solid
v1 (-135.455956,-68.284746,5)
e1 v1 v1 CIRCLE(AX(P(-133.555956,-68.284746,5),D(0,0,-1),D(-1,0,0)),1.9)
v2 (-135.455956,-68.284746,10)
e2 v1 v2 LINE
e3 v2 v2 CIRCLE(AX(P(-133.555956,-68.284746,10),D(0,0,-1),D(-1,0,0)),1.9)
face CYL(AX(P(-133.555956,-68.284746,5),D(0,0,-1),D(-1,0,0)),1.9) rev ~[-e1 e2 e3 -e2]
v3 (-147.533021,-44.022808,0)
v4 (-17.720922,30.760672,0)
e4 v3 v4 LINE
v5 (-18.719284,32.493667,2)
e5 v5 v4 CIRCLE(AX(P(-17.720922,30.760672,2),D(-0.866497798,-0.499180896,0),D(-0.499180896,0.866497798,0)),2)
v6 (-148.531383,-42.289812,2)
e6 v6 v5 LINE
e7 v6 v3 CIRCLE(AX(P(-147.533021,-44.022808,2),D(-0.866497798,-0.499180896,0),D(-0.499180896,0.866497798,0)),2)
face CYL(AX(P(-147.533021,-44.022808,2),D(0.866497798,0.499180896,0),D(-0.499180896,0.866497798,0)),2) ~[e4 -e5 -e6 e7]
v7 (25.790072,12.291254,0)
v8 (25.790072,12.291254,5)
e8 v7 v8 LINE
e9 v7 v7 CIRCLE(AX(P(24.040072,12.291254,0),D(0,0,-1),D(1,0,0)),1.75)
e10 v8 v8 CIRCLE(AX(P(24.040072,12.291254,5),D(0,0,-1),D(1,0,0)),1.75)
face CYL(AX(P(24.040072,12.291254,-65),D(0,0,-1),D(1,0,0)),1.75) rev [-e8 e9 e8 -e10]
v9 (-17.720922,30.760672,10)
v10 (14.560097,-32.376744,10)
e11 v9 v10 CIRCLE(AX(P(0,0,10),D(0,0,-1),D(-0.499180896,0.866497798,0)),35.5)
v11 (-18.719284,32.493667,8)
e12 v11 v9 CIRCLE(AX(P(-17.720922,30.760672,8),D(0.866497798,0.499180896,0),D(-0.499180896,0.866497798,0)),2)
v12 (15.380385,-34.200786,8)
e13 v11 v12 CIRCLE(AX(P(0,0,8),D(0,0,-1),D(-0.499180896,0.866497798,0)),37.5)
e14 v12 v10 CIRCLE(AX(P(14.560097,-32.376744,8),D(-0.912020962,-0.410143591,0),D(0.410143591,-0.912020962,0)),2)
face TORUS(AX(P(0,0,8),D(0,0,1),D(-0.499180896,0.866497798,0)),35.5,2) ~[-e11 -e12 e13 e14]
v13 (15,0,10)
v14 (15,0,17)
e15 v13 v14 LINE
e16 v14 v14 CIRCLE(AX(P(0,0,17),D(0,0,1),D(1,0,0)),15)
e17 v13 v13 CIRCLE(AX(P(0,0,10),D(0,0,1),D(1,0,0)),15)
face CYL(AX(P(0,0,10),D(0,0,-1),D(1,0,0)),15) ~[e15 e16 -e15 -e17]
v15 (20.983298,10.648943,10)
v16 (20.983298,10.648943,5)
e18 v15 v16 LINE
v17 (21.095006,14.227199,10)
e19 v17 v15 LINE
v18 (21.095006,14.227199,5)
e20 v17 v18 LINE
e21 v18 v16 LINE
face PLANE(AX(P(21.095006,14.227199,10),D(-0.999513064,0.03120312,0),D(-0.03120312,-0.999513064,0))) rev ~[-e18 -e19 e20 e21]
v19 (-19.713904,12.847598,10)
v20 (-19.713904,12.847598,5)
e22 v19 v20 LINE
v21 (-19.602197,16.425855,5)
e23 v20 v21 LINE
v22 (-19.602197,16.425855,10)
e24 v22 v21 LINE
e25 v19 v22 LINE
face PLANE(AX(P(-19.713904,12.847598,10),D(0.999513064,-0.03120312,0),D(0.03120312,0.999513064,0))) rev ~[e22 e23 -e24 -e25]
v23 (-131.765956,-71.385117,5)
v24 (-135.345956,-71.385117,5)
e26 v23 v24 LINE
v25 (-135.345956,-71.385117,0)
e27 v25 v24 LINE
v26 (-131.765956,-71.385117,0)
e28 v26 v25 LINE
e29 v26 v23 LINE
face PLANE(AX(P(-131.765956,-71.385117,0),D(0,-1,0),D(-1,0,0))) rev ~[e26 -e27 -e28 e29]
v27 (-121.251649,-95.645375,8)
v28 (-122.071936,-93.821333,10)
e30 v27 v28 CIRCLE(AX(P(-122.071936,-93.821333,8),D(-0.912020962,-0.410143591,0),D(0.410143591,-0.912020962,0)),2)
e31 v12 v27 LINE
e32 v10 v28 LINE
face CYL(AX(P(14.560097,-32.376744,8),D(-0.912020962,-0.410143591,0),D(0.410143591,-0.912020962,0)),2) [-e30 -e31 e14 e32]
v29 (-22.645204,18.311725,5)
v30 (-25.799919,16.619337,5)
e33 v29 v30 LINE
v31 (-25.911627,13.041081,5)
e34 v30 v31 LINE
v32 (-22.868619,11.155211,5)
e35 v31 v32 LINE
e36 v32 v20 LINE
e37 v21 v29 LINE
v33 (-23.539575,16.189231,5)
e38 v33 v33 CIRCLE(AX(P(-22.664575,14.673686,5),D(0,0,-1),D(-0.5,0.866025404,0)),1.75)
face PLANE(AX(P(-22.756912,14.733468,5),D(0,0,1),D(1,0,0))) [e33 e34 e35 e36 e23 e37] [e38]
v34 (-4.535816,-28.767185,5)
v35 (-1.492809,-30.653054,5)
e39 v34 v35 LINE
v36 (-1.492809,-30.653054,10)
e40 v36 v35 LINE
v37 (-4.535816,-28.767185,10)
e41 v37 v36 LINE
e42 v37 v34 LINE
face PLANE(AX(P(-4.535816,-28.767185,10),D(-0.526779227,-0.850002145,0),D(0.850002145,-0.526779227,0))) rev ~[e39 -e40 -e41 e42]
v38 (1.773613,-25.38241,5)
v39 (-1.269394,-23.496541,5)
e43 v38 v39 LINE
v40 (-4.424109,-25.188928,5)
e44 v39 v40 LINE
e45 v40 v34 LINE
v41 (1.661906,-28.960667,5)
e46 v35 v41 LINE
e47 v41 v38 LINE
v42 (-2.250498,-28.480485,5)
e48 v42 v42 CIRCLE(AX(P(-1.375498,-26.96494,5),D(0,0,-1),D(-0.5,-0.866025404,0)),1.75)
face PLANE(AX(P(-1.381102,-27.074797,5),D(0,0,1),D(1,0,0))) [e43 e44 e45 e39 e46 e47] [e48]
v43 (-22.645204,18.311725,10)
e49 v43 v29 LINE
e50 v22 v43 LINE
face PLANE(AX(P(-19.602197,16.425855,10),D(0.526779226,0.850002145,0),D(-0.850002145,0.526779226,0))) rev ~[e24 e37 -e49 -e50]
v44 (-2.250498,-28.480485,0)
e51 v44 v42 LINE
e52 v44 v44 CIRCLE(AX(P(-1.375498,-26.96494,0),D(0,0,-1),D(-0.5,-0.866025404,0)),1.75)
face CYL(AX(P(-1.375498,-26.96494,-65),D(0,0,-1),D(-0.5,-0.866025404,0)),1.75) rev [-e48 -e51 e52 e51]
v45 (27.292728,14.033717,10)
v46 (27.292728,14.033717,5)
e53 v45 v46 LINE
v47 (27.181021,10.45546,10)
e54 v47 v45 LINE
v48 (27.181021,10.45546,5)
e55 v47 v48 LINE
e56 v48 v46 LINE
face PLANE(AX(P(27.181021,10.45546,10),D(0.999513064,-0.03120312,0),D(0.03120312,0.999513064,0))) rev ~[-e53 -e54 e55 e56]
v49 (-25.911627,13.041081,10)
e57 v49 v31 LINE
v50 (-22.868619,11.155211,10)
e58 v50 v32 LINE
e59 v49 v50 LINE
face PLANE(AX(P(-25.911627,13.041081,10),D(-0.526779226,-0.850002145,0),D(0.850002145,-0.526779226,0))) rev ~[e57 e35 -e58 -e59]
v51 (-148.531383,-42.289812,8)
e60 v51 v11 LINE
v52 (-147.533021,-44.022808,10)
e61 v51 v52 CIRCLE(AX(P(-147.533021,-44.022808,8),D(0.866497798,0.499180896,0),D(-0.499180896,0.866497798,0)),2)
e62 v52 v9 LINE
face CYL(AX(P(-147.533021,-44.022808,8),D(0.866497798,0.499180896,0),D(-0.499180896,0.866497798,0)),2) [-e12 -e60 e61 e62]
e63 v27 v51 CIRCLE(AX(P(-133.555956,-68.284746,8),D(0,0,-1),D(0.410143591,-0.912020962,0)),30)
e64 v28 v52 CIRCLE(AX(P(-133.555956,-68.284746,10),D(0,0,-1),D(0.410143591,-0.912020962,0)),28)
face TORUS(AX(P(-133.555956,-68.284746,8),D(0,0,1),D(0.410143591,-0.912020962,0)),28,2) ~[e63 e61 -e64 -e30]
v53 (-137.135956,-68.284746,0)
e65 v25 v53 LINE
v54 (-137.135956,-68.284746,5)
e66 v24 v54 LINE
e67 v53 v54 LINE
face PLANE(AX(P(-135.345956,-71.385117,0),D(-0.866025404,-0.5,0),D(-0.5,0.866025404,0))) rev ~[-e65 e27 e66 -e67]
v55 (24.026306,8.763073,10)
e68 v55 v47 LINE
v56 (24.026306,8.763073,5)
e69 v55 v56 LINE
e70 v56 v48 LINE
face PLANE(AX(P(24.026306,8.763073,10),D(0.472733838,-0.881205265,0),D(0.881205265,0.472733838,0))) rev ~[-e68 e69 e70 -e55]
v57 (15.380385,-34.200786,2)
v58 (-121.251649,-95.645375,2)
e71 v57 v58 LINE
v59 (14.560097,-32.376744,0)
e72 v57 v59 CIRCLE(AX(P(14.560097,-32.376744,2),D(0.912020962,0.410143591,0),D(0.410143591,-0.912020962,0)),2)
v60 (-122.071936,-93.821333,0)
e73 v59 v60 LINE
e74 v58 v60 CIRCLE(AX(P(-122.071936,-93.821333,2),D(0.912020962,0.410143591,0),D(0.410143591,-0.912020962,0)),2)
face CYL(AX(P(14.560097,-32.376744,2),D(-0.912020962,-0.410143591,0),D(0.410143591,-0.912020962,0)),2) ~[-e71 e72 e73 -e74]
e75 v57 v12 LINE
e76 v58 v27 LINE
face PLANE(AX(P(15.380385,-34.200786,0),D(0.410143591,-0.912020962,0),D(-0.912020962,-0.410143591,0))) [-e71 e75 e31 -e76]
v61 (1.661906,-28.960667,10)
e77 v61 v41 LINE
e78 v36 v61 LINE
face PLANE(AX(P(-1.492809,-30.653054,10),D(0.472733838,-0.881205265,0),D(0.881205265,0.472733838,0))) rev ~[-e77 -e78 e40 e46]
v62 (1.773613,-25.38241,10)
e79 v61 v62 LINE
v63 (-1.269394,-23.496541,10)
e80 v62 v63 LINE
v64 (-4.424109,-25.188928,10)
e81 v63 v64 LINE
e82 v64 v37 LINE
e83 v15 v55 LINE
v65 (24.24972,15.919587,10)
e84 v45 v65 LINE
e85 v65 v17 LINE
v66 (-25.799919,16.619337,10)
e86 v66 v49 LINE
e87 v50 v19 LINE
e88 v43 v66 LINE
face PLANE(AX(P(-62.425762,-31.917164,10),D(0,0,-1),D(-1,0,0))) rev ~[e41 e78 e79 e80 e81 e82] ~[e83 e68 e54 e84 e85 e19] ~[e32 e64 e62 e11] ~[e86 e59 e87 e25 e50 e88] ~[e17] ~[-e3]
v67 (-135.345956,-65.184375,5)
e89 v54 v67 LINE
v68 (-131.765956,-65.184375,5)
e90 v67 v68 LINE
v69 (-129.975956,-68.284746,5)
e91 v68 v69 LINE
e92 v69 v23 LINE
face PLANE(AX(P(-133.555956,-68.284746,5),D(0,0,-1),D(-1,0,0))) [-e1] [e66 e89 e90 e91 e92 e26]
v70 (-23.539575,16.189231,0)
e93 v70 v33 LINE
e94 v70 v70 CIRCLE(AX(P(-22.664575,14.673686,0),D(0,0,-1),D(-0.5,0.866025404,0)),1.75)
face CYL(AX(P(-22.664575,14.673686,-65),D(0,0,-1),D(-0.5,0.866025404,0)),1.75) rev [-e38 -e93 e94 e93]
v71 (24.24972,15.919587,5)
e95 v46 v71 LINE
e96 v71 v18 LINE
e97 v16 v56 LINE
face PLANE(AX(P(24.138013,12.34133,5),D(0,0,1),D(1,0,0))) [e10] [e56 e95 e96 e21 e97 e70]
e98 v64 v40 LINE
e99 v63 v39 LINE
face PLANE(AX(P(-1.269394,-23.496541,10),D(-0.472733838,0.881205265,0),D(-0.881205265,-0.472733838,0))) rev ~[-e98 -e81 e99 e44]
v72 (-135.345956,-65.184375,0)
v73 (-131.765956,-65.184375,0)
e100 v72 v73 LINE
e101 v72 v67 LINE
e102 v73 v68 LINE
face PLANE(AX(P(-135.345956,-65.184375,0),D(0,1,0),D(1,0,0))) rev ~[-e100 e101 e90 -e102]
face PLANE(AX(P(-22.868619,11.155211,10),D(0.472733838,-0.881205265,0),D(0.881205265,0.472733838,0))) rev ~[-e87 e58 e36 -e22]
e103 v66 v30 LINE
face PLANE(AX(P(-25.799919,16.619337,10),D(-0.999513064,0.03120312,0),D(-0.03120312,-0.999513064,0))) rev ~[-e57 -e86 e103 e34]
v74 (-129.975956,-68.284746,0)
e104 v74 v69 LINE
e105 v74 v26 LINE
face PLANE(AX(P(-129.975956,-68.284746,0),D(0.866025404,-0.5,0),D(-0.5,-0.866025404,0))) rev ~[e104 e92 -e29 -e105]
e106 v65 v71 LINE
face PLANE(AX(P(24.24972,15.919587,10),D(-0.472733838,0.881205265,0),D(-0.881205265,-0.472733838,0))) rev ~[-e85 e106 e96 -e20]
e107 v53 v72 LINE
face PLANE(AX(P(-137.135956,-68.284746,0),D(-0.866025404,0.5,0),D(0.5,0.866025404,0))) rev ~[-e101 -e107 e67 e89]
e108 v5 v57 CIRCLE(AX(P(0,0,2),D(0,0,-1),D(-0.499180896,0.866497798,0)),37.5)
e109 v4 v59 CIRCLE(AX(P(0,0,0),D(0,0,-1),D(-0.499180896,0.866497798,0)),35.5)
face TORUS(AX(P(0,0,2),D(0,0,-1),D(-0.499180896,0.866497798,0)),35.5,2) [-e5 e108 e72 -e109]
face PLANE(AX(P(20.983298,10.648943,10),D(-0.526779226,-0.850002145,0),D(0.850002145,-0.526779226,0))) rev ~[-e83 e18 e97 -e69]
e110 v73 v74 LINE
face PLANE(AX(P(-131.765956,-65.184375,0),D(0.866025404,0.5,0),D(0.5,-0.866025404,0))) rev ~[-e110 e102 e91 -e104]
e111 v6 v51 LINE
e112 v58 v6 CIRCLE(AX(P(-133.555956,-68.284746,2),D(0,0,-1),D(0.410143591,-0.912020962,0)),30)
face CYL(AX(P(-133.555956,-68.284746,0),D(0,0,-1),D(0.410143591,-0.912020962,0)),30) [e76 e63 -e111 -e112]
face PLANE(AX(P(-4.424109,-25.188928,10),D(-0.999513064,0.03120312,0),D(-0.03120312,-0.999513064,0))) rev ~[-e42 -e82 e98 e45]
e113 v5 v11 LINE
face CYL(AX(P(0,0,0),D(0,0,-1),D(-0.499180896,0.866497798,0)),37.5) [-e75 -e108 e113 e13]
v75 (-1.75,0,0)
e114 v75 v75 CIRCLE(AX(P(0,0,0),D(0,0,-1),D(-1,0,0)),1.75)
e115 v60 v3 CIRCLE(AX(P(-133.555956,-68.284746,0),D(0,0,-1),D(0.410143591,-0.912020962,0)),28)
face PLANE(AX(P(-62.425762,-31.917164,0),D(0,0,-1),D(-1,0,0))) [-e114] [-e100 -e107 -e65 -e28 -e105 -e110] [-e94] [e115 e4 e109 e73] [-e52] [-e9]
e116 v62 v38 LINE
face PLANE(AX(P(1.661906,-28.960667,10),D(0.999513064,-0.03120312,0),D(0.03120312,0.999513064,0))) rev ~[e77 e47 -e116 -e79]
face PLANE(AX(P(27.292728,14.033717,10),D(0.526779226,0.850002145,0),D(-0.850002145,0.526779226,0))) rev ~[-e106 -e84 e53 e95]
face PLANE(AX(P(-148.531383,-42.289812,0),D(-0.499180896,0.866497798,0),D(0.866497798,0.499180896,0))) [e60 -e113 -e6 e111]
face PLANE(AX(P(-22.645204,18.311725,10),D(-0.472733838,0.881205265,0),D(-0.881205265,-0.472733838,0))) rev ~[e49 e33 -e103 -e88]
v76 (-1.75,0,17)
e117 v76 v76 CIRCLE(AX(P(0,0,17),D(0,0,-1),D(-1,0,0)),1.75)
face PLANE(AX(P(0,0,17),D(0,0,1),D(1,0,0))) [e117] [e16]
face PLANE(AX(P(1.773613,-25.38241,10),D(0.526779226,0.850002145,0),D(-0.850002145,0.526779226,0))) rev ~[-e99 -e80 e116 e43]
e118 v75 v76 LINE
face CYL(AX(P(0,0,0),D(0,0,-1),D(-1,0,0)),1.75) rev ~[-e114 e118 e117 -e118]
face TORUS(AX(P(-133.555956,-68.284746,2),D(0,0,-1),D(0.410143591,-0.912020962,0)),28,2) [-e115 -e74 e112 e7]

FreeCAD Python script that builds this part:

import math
import FreeCAD as App
import Part
import Sketcher
from FreeCAD import Vector
Q = App.Units.Quantity


def edges_at(feature, points):
    """Names of the edges that pass closest to the given points."""
    edges = feature.Shape.Edges
    near = lambda p: min(range(len(edges)), key=lambda i: edges[i].distToShape(Part.Vertex(*p))[0])
    return sorted({f"Edge{near(p) + 1}" for p in points})

doc = App.newDocument("Part")
body = doc.addObject("PartDesign::Body", "Body")

sketch1 = doc.addObject("Sketcher::SketchObject", "Sketch")
body.addObject(sketch1)
sketch1.AttachmentSupport = (doc.XY_Plane, [""])
sketch1.MapMode = "FlatFace"
sketch1.addGeometry([
    Part.LineSegment(Vector(-19, 32, 0), Vector(-149, -42, 0)),
    Part.ArcOfCircle(Part.Circle(Vector(-134, -68, 0), Vector(0, 0, 1), 30), math.radians(120), math.radians(294)),
    Part.LineSegment(Vector(-121, -96, 0), Vector(15, -34, 0)),
    Part.ArcOfCircle(Part.Circle(Vector(0, 0, 0), Vector(0, 0, 1), 38), math.radians(-66), math.radians(120)),
], False)
sketch1.addConstraint([
    Sketcher.Constraint("Tangent", 0, 2, 1, 1),
    Sketcher.Constraint("Tangent", 1, 2, 2, 1),
    Sketcher.Constraint("Tangent", 2, 2, 3, 1),
    Sketcher.Constraint("Tangent", 3, 2, 0, 1),
    Sketcher.Constraint("Coincident", 3, 3, -1, 1),
    Sketcher.Constraint("Radius", 1, Q("30 mm")),
    Sketcher.Constraint("Radius", 3, Q("37.5 mm")),
    Sketcher.Constraint("DistanceX", 0, 2, 3, 2, Q("129.8121 mm")),
    Sketcher.Constraint("DistanceY", 0, 2, -1, 1, Q("42.289812 mm")),
])
pad1 = doc.addObject("PartDesign::Pad", "Pad")
body.addObject(pad1)
pad1.Profile = sketch1
pad1.Length = 10
doc.recompute()

fillet = doc.addObject("PartDesign::Fillet", "Fillet")
body.addObject(fillet)
fillet.Base = (pad1, edges_at(pad1, [
    (33.389, 17.071, 10),
    (-83.625, -4.898, 10),
    (-160.267, -81.942, 10),
    (-83.625, -4.898, 0),
    (33.389, 17.071, 0),
    (-52.936, -64.923, 0),
    (-160.267, -81.942, 0),
    (-52.936, -64.923, 10),
]))
fillet.Radius = 2

sketch2 = doc.addObject("Sketcher::SketchObject", "Sketch001")
body.addObject(sketch2)
sketch2.AttachmentSupport = (doc.XY_Plane, [""])
sketch2.MapMode = "FlatFace"
sketch2.AttachmentOffset = App.Placement(Vector(0, 0, 10), App.Rotation())
sketch2.addGeometry([
    Part.LineSegment(Vector(-4.4, -25.2, 0), Vector(-4.5, -28.8, 0)),
    Part.LineSegment(Vector(-4.5, -28.8, 0), Vector(-1.5, -30.7, 0)),
    Part.LineSegment(Vector(-1.5, -30.7, 0), Vector(1.7, -29, 0)),
    Part.LineSegment(Vector(1.7, -29, 0), Vector(1.8, -25.4, 0)),
    Part.LineSegment(Vector(1.8, -25.4, 0), Vector(-1.3, -23.5, 0)),
    Part.LineSegment(Vector(-1.3, -23.5, 0), Vector(-4.4, -25.2, 0)),
    Part.LineSegment(Vector(27.3, 14, 0), Vector(24.2, 15.9, 0)),
    Part.LineSegment(Vector(24.2, 15.9, 0), Vector(21.1, 14.2, 0)),
    Part.LineSegment(Vector(21.1, 14.2, 0), Vector(21, 10.6, 0)),
    Part.LineSegment(Vector(21, 10.6, 0), Vector(24, 8.8, 0)),
    Part.LineSegment(Vector(24, 8.8, 0), Vector(27.2, 10.5, 0)),
    Part.LineSegment(Vector(27.2, 10.5, 0), Vector(27.3, 14, 0)),
    Part.LineSegment(Vector(-19.6, 16.4, 0), Vector(-22.6, 18.3, 0)),
    Part.LineSegment(Vector(-22.6, 18.3, 0), Vector(-25.8, 16.6, 0)),
    Part.LineSegment(Vector(-25.8, 16.6, 0), Vector(-25.9, 13, 0)),
    Part.LineSegment(Vector(-25.9, 13, 0), Vector(-22.9, 11.2, 0)),
    Part.LineSegment(Vector(-22.9, 11.2, 0), Vector(-19.7, 12.8, 0)),
    Part.LineSegment(Vector(-19.7, 12.8, 0), Vector(-19.6, 16.4, 0)),
], False)
sketch2.addConstraint([
    Sketcher.Constraint("Coincident", 0, 2, 1, 1),
    Sketcher.Constraint("Coincident", 1, 2, 2, 1),
    Sketcher.Constraint("Coincident", 2, 2, 3, 1),
    Sketcher.Constraint("Coincident", 3, 2, 4, 1),
    Sketcher.Constraint("Coincident", 4, 2, 5, 1),
    Sketcher.Constraint("Coincident", 5, 2, 0, 1),
    Sketcher.Constraint("Coincident", 6, 2, 7, 1),
    Sketcher.Constraint("Coincident", 7, 2, 8, 1),
    Sketcher.Constraint("Coincident", 8, 2, 9, 1),
    Sketcher.Constraint("Coincident", 9, 2, 10, 1),
    Sketcher.Constraint("Coincident", 10, 2, 11, 1),
    Sketcher.Constraint("Coincident", 11, 2, 6, 1),
    Sketcher.Constraint("Coincident", 12, 2, 13, 1),
    Sketcher.Constraint("Coincident", 13, 2, 14, 1),
    Sketcher.Constraint("Coincident", 14, 2, 15, 1),
    Sketcher.Constraint("Coincident", 15, 2, 16, 1),
    Sketcher.Constraint("Coincident", 16, 2, 17, 1),
    Sketcher.Constraint("Coincident", 17, 2, 12, 1),
    Sketcher.Constraint("Parallel", 0, 3),
    Sketcher.Constraint("Parallel", 1, 4),
    Sketcher.Constraint("Parallel", 2, 5),
    Sketcher.Constraint("Parallel", 4, 6),
    Sketcher.Constraint("Parallel", 5, 7),
    Sketcher.Constraint("Parallel", 3, 8),
    Sketcher.Constraint("Parallel", 6, 9),
    Sketcher.Constraint("Parallel", 7, 10),
    Sketcher.Constraint("Parallel", 8, 11),
    Sketcher.Constraint("Parallel", 9, 12),
    Sketcher.Constraint("Parallel", 10, 13),
    Sketcher.Constraint("Parallel", 11, 14),
    Sketcher.Constraint("Parallel", 12, 15),
    Sketcher.Constraint("Parallel", 13, 16),
    Sketcher.Constraint("Parallel", 14, 17),
    Sketcher.Constraint("Equal", 0, 1),
    Sketcher.Constraint("Equal", 1, 2),
    Sketcher.Constraint("Equal", 2, 3),
    Sketcher.Constraint("Equal", 5, 6),
    Sketcher.Constraint("Equal", 6, 7),
    Sketcher.Constraint("Equal", 7, 8),
    Sketcher.Constraint("Equal", 8, 9),
    Sketcher.Constraint("Equal", 11, 12),
    Sketcher.Constraint("Equal", 12, 13),
    Sketcher.Constraint("Equal", 13, 14),
    Sketcher.Constraint("Equal", 14, 15),
    Sketcher.Constraint("Distance", 0, Q("3.58 mm")),
    Sketcher.Constraint("DistanceY", -1, 1, 7, 2, Q("14.227199 mm")),
    Sketcher.Constraint("DistanceX", -1, 1, 8, 2, Q("20.983298 mm")),
    Sketcher.Constraint("DistanceY", -1, 1, 16, 2, Q("12.847598 mm")),
    Sketcher.Constraint("DistanceX", 4, 2, 2, 2, Q("2.931301 mm")),
    Sketcher.Constraint("DistanceX", 4, 2, 7, 2, Q("22.3644 mm")),
    Sketcher.Constraint("DistanceX", 1, 2, -1, 1, Q("1.492809 mm")),
    Sketcher.Constraint("DistanceY", 3, 2, -1, 1, Q("25.38241 mm")),
    Sketcher.Constraint("DistanceY", 4, 2, -1, 1, Q("23.496541 mm")),
    Sketcher.Constraint("DistanceX", 13, 2, -1, 1, Q("25.799919 mm")),
])
pocket1 = doc.addObject("PartDesign::Pocket", "Pocket")
body.addObject(pocket1)
pocket1.Profile = sketch2
pocket1.Length = 5

sketch3 = doc.addObject("Sketcher::SketchObject", "Sketch002")
body.addObject(sketch3)
sketch3.AttachmentSupport = (doc.XY_Plane, [""])
sketch3.MapMode = "FlatFace"
sketch3.AttachmentOffset = App.Placement(Vector(0, 0, -65), App.Rotation())
sketch3.addGeometry(Part.Circle(Vector(24, 12.3, 0), Vector(0, 0, 1), 1.8), False)
sketch3.addConstraint([
    Sketcher.Constraint("Diameter", 0, Q("3.5 mm")),
    Sketcher.Constraint("DistanceX", -1, 1, 0, 3, Q("24.040072 mm")),
    Sketcher.Constraint("DistanceY", -1, 1, 0, 3, Q("12.291254 mm")),
])
pocket2 = doc.addObject("PartDesign::Pocket", "Pocket001")
body.addObject(pocket2)
pocket2.Profile = sketch3
pocket2.Length = 71
pocket2.Reversed = True
doc.recompute()

polarpattern = doc.addObject("PartDesign::PolarPattern", "PolarPattern")
body.addObject(polarpattern)
polarpattern.Originals = [pocket2]
polarpattern.Axis = (doc.Z_Axis, [""])
polarpattern.Angle = 360
polarpattern.Occurrences = 3
body.Tip = polarpattern

sketch4 = doc.addObject("Sketcher::SketchObject", "Sketch003")
body.addObject(sketch4)
sketch4.AttachmentSupport = (doc.XY_Plane, [""])
sketch4.MapMode = "FlatFace"
sketch4.AttachmentOffset = App.Placement(Vector(0, 0, 10), App.Rotation())
sketch4.addGeometry(Part.Circle(Vector(0, 0, 0), Vector(0, 0, 1), 15), False)
sketch4.addConstraint([
    Sketcher.Constraint("Coincident", 0, 3, -1, 1),
    Sketcher.Constraint("Diameter", 0, Q("30 mm")),
])
pad2 = doc.addObject("PartDesign::Pad", "Pad001")
body.addObject(pad2)
pad2.Profile = sketch4
pad2.Length = 7

sketch5 = doc.addObject("Sketcher::SketchObject", "Sketch004")
body.addObject(sketch5)
sketch5.AttachmentSupport = (doc.XY_Plane, [""])
sketch5.MapMode = "FlatFace"
sketch5.addGeometry([
    Part.LineSegment(Vector(-137.1, -68.3, 0), Vector(-135.3, -65.2, 0)),
    Part.LineSegment(Vector(-135.3, -65.2, 0), Vector(-131.8, -65.2, 0)),
    Part.LineSegment(Vector(-131.8, -65.2, 0), Vector(-130, -68.3, 0)),
    Part.LineSegment(Vector(-130, -68.3, 0), Vector(-131.8, -71.4, 0)),
    Part.LineSegment(Vector(-131.8, -71.4, 0), Vector(-135.3, -71.4, 0)),
    Part.LineSegment(Vector(-135.3, -71.4, 0), Vector(-137.1, -68.3, 0)),
], False)
sketch5.addConstraint([
    Sketcher.Constraint("Coincident", 0, 2, 1, 1),
    Sketcher.Constraint("Coincident", 1, 2, 2, 1),
    Sketcher.Constraint("Coincident", 2, 2, 3, 1),
    Sketcher.Constraint("Coincident", 3, 2, 4, 1),
    Sketcher.Constraint("Coincident", 4, 2, 5, 1),
    Sketcher.Constraint("Coincident", 5, 2, 0, 1),
    Sketcher.Constraint("Horizontal", 1),
    Sketcher.Constraint("Horizontal", 4),
    Sketcher.Constraint("Parallel", 0, 3),
    Sketcher.Constraint("Parallel", 2, 5),
    Sketcher.Constraint("Horizontal", 2, 2, 5, 2),
    Sketcher.Constraint("Vertical", 1, 2, 3, 2),
    Sketcher.Constraint("Vertical", 0, 2, 4, 2),
    Sketcher.Constraint("Angle", 0, Q("60 deg")),
    Sketcher.Constraint("DistanceX", 1, 1, 1, 2, Q("3.58 mm")),
    Sketcher.Constraint("Distance", 0, Q("3.58 mm")),
    Sketcher.Constraint("DistanceX", 0, 2, -1, 1, Q("135.345956 mm")),
    Sketcher.Constraint("DistanceY", 0, 2, -1, 1, Q("65.184375 mm")),
])
pocket3 = doc.addObject("PartDesign::Pocket", "Pocket002")
body.addObject(pocket3)
pocket3.Profile = sketch5
pocket3.Length = 5
pocket3.Reversed = True

sketch6 = doc.addObject("Sketcher::SketchObject", "Sketch005")
body.addObject(sketch6)
sketch6.AttachmentSupport = (doc.XY_Plane, [""])
sketch6.MapMode = "FlatFace"
sketch6.AttachmentOffset = App.Placement(Vector(0, 0, 5), App.Rotation())
sketch6.addGeometry(Part.Circle(Vector(-133.6, -68.3, 0), Vector(0, 0, 1), 1.9), False)
sketch6.addConstraint([
    Sketcher.Constraint("Diameter", 0, Q("3.8 mm")),
    Sketcher.Constraint("DistanceX", 0, 3, -1, 1, Q("133.555956 mm")),
    Sketcher.Constraint("DistanceY", 0, 3, -1, 1, Q("68.284746 mm")),
])
pocket4 = doc.addObject("PartDesign::Pocket", "Pocket003")
body.addObject(pocket4)
pocket4.Profile = sketch6
pocket4.Length = 5
pocket4.Reversed = True

sketch7 = doc.addObject("Sketcher::SketchObject", "Sketch006")
body.addObject(sketch7)
sketch7.AttachmentSupport = (doc.XY_Plane, [""])
sketch7.MapMode = "FlatFace"
sketch7.addGeometry(Part.Circle(Vector(0, 0, 0), Vector(0, 0, 1), 1.8), False)
sketch7.addConstraint([
    Sketcher.Constraint("Coincident", 0, 3, -1, 1),
    Sketcher.Constraint("Diameter", 0, Q("3.5 mm")),
])
pocket5 = doc.addObject("PartDesign::Pocket", "Pocket004")
body.addObject(pocket5)
pocket5.Profile = sketch7
pocket5.Length = 18
pocket5.Reversed = True

doc.recompute()
